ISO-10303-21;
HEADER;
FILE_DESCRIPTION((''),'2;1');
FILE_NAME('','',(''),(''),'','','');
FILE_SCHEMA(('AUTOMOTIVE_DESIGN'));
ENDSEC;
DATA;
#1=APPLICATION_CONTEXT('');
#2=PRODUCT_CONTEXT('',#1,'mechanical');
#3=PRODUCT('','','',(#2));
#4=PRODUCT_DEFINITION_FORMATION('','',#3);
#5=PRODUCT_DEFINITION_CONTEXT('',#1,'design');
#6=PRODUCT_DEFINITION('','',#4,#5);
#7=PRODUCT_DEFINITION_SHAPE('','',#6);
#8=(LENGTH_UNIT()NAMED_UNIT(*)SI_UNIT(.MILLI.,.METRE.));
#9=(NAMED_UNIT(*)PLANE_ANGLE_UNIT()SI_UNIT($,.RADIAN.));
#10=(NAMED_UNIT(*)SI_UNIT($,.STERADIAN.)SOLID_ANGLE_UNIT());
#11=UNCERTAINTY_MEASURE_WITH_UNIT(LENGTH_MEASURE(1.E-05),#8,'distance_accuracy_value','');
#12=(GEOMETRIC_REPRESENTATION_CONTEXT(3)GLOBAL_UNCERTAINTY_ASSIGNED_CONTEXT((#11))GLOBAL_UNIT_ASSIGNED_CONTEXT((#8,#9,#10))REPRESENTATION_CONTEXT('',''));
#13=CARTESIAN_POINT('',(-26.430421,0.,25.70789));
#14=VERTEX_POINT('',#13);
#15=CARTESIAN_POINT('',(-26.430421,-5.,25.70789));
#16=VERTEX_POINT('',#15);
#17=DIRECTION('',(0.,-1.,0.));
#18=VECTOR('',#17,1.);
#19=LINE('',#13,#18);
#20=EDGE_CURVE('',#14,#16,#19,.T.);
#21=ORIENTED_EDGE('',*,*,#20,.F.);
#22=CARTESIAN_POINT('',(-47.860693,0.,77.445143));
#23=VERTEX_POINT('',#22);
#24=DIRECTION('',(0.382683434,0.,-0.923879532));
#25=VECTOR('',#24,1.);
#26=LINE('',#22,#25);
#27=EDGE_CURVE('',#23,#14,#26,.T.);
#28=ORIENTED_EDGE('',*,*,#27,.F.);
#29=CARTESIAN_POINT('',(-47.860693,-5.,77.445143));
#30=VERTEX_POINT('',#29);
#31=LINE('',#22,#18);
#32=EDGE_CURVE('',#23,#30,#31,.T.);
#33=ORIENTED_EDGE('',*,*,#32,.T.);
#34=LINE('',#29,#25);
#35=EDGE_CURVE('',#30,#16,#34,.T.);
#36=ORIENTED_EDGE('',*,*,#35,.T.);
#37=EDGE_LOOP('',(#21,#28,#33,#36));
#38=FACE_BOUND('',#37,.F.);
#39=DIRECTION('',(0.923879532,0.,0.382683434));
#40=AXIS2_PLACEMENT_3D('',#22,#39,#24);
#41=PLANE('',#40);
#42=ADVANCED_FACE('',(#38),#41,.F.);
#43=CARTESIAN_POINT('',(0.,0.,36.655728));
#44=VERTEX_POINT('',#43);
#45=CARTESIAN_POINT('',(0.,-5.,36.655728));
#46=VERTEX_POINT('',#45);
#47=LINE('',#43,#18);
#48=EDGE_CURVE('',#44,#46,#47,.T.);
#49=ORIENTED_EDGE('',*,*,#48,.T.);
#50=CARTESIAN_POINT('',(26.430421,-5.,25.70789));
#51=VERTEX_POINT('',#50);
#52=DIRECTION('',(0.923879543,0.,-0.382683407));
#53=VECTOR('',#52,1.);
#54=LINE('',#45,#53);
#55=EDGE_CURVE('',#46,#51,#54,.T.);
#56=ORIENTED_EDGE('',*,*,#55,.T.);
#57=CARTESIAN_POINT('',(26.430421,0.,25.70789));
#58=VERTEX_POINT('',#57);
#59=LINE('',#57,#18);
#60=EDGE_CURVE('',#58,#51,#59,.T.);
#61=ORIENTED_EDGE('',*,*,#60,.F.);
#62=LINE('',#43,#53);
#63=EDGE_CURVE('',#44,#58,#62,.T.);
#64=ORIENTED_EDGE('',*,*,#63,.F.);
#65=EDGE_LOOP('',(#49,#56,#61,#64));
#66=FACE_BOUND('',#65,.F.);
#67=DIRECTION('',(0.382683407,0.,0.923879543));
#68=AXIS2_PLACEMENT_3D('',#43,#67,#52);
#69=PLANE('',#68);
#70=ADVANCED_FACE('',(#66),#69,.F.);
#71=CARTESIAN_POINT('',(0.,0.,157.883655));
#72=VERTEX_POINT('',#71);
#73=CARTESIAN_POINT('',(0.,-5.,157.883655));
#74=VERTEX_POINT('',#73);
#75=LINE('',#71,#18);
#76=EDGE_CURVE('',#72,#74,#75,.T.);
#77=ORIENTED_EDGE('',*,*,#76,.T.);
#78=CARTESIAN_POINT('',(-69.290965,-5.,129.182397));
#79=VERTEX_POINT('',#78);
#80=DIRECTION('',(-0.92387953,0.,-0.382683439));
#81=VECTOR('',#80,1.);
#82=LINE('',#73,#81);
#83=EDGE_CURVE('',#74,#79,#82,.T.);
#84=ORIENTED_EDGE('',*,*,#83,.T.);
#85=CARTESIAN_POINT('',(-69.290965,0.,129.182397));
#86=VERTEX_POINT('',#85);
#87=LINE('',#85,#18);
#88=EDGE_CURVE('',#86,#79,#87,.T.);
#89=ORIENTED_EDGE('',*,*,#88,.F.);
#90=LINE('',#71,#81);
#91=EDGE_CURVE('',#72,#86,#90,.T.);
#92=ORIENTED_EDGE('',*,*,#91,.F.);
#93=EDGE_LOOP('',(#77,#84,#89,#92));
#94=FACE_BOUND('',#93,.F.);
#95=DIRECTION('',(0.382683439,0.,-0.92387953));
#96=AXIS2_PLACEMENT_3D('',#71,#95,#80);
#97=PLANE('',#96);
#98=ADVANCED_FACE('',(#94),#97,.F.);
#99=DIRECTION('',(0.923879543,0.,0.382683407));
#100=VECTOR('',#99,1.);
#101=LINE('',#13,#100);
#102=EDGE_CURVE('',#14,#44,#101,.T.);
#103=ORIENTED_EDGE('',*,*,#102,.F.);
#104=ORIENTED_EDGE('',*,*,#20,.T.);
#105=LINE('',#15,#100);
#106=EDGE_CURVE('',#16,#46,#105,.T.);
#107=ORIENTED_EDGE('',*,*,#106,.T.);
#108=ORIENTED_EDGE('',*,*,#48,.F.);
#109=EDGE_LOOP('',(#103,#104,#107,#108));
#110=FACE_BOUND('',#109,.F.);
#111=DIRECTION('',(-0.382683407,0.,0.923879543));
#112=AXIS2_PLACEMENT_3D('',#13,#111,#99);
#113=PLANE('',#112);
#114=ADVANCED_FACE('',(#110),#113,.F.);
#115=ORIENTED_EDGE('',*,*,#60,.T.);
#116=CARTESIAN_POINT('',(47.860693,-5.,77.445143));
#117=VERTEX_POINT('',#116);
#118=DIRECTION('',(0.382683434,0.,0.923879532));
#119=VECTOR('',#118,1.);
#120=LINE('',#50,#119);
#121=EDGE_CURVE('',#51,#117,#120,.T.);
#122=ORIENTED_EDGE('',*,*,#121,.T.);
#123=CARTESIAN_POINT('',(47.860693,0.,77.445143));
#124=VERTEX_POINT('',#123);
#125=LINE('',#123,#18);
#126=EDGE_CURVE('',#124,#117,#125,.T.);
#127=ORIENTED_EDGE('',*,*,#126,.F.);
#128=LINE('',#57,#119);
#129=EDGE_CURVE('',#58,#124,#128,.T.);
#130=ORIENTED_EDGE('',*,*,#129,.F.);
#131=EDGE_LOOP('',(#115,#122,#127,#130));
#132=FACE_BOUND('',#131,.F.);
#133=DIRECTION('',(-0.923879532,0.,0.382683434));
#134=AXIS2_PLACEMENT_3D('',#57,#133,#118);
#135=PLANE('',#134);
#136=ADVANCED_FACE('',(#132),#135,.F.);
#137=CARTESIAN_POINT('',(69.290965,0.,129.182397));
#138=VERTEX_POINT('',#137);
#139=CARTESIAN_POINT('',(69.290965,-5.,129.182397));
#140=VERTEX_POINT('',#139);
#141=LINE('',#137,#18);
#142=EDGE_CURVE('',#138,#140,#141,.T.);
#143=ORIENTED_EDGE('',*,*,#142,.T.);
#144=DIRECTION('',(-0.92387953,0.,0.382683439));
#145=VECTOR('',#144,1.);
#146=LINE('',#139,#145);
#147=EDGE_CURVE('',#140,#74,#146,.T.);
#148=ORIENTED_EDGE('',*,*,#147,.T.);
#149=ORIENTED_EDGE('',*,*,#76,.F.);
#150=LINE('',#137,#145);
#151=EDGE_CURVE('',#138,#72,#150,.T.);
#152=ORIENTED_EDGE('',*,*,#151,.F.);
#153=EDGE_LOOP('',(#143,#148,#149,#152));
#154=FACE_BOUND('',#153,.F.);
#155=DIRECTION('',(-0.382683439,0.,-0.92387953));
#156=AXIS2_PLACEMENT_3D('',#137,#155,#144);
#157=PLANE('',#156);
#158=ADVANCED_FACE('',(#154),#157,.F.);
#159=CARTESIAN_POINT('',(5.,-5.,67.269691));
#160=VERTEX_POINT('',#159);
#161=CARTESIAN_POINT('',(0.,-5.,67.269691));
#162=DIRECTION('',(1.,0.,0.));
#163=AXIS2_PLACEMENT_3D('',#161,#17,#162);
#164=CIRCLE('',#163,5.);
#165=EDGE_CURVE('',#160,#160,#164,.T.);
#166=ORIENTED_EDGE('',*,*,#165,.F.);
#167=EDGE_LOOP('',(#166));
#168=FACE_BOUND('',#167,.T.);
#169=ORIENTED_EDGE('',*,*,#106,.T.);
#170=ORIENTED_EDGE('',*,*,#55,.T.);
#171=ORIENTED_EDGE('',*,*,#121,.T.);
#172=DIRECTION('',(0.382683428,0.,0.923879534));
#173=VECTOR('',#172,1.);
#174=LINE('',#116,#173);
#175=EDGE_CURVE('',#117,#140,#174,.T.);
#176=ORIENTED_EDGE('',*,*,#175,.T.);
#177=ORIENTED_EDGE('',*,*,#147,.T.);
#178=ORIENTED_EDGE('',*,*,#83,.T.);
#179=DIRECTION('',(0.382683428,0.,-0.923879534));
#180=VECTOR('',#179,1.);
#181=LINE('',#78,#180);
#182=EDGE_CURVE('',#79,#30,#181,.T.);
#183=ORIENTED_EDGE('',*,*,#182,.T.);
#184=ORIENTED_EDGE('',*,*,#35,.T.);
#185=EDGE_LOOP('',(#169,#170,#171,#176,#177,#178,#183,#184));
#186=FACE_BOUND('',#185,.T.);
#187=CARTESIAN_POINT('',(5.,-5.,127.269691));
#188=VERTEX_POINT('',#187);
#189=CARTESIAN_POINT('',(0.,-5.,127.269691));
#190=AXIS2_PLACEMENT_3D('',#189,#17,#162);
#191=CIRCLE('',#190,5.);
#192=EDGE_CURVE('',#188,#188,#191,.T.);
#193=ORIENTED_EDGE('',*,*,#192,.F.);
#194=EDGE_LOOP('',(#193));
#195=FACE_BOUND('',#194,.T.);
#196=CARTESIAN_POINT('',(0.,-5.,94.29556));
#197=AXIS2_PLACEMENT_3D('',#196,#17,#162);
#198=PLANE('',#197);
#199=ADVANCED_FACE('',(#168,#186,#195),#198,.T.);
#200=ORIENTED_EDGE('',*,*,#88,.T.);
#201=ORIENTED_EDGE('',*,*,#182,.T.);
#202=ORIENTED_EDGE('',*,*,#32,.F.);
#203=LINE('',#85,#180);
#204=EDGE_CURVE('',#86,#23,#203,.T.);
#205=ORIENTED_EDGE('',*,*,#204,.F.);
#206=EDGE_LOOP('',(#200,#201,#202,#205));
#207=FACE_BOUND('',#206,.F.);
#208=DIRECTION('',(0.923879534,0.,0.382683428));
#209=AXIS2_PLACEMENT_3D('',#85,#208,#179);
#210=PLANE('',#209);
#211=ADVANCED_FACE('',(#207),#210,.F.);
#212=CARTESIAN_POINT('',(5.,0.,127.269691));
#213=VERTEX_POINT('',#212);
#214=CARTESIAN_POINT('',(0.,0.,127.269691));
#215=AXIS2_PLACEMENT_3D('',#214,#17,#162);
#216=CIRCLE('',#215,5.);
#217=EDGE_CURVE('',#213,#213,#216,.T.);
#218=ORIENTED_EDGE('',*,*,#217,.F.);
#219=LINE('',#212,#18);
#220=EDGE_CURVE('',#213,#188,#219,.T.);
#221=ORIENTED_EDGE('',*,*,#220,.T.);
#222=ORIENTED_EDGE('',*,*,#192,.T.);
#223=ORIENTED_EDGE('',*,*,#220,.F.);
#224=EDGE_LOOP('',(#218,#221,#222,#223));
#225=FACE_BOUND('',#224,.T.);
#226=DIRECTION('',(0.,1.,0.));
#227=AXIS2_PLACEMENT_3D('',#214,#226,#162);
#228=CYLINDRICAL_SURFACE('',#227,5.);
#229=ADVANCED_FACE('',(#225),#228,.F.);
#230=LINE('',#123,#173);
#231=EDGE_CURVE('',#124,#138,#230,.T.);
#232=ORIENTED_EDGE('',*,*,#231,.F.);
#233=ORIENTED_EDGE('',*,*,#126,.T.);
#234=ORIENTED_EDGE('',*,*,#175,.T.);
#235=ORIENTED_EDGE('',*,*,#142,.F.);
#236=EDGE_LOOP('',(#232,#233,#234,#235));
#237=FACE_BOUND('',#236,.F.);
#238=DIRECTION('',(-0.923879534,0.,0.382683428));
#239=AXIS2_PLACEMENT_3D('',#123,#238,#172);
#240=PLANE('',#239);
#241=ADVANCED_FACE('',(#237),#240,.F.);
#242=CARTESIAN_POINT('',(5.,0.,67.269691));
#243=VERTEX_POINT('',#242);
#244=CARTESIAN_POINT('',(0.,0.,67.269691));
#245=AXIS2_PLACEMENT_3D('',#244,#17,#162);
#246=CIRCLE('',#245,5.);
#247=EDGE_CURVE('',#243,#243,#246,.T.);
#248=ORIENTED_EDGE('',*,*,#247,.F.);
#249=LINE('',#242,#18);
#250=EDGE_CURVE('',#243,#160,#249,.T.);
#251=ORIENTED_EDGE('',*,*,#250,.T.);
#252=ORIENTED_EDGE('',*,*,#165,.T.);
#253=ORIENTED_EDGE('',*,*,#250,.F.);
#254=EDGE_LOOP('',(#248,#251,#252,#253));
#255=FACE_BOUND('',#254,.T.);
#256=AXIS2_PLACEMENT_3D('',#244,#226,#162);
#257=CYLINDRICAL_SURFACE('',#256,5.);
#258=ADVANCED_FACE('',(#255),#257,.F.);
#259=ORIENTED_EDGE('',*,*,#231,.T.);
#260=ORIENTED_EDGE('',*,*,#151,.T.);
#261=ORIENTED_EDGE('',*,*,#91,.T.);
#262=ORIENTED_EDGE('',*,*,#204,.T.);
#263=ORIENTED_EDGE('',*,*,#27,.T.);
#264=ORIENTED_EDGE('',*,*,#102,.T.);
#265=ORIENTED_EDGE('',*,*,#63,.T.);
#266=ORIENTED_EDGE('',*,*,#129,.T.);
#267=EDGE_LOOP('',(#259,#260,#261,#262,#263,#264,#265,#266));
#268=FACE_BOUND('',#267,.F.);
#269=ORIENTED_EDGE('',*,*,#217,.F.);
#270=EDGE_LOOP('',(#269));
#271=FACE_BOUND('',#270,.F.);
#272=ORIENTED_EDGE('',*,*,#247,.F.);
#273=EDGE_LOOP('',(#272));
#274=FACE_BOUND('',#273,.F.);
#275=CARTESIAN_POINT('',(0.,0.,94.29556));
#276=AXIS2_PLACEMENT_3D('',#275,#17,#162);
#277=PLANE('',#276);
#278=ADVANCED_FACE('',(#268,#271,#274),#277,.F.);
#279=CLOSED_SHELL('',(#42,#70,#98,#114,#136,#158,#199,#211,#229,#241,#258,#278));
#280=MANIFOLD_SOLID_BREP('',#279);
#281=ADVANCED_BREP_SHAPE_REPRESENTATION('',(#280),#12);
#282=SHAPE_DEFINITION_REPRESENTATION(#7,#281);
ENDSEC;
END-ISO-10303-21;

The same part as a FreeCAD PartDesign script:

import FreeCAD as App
import Part
import Sketcher

V = App.Vector
Q = App.Units.Quantity

doc = App.newDocument("Part")
body = doc.addObject("PartDesign::Body", "Body")

# Sketch on XZ plane
sketch1 = doc.addObject("Sketcher::SketchObject", "Sketch")
body.addObject(sketch1)
sketch1.AttachmentSupport = (doc.XZ_Plane, [""])
sketch1.MapMode = "FlatFace"
sketch1.addGeometry(Part.LineSegment(V(69.290965, 129.182397, 0), V(0, 157.883655, 0)), False)
sketch1.addGeometry(Part.LineSegment(V(0, 157.883655, 0), V(-69.290965, 129.182397, 0)), False)
sketch1.addGeometry(Part.LineSegment(V(-69.290965, 129.182397, 0), V(-47.860693, 77.445143, 0)), False)
sketch1.addGeometry(Part.LineSegment(V(-47.860693, 77.445143, 0), V(-26.430421, 25.70789, 0)), False)
sketch1.addGeometry(Part.LineSegment(V(-26.430421, 25.70789, 0), V(0, 36.655728, 0)), False)
sketch1.addGeometry(Part.LineSegment(V(0, 36.655728, 0), V(26.430421, 25.70789, 0)), False)
sketch1.addGeometry(Part.LineSegment(V(26.430421, 25.70789, 0), V(47.860693, 77.445143, 0)), False)
sketch1.addGeometry(Part.LineSegment(V(47.860693, 77.445143, 0), V(69.290965, 129.182397, 0)), False)
sketch1.addGeometry(Part.Circle(V(0, 67.269691, 0), V(0, 0, 1), 5), False)
sketch1.addGeometry(Part.Circle(V(0, 127.269691, 0), V(0, 0, 1), 5), False)
sketch1.addConstraint(Sketcher.Constraint("Coincident", 0, 2, 1, 1))
sketch1.addConstraint(Sketcher.Constraint("Coincident", 1, 2, 2, 1))
sketch1.addConstraint(Sketcher.Constraint("Coincident", 2, 2, 3, 1))
sketch1.addConstraint(Sketcher.Constraint("Coincident", 3, 2, 4, 1))
sketch1.addConstraint(Sketcher.Constraint("Coincident", 4, 2, 5, 1))
sketch1.addConstraint(Sketcher.Constraint("Coincident", 5, 2, 6, 1))
sketch1.addConstraint(Sketcher.Constraint("Coincident", 6, 2, 7, 1))
sketch1.addConstraint(Sketcher.Constraint("Coincident", 7, 2, 0, 1))
sketch1.addConstraint(Sketcher.Constraint("Equal", 8, 9))
sketch1.addConstraint(Sketcher.Constraint("Symmetric", 3, 2, 5, 2, -2))
sketch1.addConstraint(Sketcher.Constraint("Symmetric", 2, 2, 6, 2, -2))
sketch1.addConstraint(Sketcher.Constraint("Symmetric", 1, 2, 7, 2, -2))
sketch1.addConstraint(Sketcher.Constraint("PointOnObject", 8, 3, -2))
sketch1.addConstraint(Sketcher.Constraint("PointOnObject", 9, 3, -2))
sketch1.addConstraint(Sketcher.Constraint("PointOnObject", 0, 2, -2))
sketch1.addConstraint(Sketcher.Constraint("PointOnObject", 4, 2, -2))
sketch1.addConstraint(Sketcher.Constraint("Perpendicular", 1, 2))
sketch1.addConstraint(Sketcher.Constraint("Parallel", 2, 3))
sketch1.addConstraint(Sketcher.Constraint("Perpendicular", 3, 4))
sketch1.addConstraint(Sketcher.Constraint("Equal", 2, 3))
sketch1.addConstraint(Sketcher.Constraint("Diameter", 8, 10.0))
sketch1.addConstraint(Sketcher.Constraint("Distance", 0, 75.0))
sketch1.addConstraint(Sketcher.Constraint("Distance", 2, 56.0))
sketch1.addConstraint(Sketcher.Constraint("Angle", 0, Q("157.5 deg")))
sketch1.addConstraint(Sketcher.Constraint("DistanceY", 8, 3, 9, 3, 60.0))
sketch1.addConstraint(Sketcher.Constraint("DistanceY", 3, 2, 8, 3, 41.561801))
sketch1.addConstraint(Sketcher.Constraint("DistanceY", -1, 1, 8, 3, 67.269691))
pad1 = doc.addObject("PartDesign::Pad", "Pad")
body.addObject(pad1)
pad1.Profile = sketch1
pad1.Length = 5

doc.recompute()
